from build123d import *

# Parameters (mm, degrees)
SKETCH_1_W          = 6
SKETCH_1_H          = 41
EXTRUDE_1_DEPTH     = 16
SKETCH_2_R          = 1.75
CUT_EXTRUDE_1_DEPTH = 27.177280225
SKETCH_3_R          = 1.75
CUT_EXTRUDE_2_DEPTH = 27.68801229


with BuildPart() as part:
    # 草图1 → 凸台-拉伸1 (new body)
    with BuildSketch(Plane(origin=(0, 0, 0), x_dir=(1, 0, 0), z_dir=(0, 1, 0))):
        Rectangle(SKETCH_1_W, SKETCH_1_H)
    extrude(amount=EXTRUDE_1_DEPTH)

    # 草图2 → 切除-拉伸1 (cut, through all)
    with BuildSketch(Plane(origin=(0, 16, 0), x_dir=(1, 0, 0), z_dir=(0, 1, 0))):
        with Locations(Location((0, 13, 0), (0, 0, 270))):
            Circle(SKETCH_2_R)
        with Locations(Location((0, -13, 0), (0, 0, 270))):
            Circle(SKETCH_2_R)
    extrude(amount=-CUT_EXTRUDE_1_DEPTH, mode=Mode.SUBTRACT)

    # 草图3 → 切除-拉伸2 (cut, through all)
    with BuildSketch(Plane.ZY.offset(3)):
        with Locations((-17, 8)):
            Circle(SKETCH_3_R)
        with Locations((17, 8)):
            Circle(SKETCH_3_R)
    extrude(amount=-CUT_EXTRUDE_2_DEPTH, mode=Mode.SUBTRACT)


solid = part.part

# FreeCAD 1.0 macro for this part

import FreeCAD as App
import Part
import Sketcher


def add_polygon(sketch, points):
    """Adds a closed chain of lines whose ends are joined by coincident constraints."""
    first, n = sketch.GeometryCount, len(points)
    for a, b in zip(points, points[1:] + points[:1]):
        sketch.addGeometry(Part.LineSegment(App.Vector(*a, 0), App.Vector(*b, 0)), False)
    for i in range(n):
        sketch.addConstraint(Sketcher.Constraint("Coincident", first + i, 2, first + (i + 1) % n, 1))

doc = App.newDocument("Part")
body = doc.addObject("PartDesign::Body", "Body")

# Sketch on XZ plane
sketch1 = body.newObject("Sketcher::SketchObject", "Sketch")
sketch1.AttachmentSupport = (doc.getObject("XZ_Plane"), [""])
sketch1.MapMode = "FlatFace"
add_polygon(sketch1, [(-3, -20), (-3, 20), (3, 20), (3, -20)])  # lines 0-3
sketch1.addConstraint(Sketcher.Constraint("Vertical", 0))
sketch1.addConstraint(Sketcher.Constraint("Horizontal", 1))
sketch1.addConstraint(Sketcher.Constraint("Vertical", 2))
sketch1.addConstraint(Sketcher.Constraint("Horizontal", 3))
sketch1.addConstraint(Sketcher.Constraint("Symmetric", 0, 2, 2, 2, -1, 1))
sketch1.addConstraint(Sketcher.Constraint("DistanceX", 1, 1, 1, 2, 6.0))
sketch1.addConstraint(Sketcher.Constraint("DistanceY", 0, 1, 0, 2, 41.0))
pad1 = body.newObject("PartDesign::Pad", "Pad")
pad1.Profile = sketch1
pad1.Length = 16
pad1.Reversed = True

# Sketch on XZ plane
sketch2 = body.newObject("Sketcher::SketchObject", "Sketch001")
sketch2.AttachmentSupport = (doc.getObject("XZ_Plane"), [""])
sketch2.MapMode = "FlatFace"
sketch2.AttachmentOffset = App.Placement(App.Vector(0, 0, -16), App.Rotation())
sketch2.addGeometry(Part.Circle(App.Vector(0, -13, 0), App.Vector(0, 0, 1), 1.8), False)
sketch2.addGeometry(Part.Circle(App.Vector(0, 13, 0), App.Vector(0, 0, 1), 1.8), False)
sketch2.addConstraint(Sketcher.Constraint("Equal", 0, 1))
sketch2.addConstraint(Sketcher.Constraint("Symmetric", 0, 3, 1, 3, -1, 1))
sketch2.addConstraint(Sketcher.Constraint("PointOnObject", 0, 3, -2))
sketch2.addConstraint(Sketcher.Constraint("Diameter", 0, 3.5))
sketch2.addConstraint(Sketcher.Constraint("DistanceY", 0, 3, -1, 1, 13.0))
pocket1 = body.newObject("PartDesign::Pocket", "Pocket")
pocket1.Profile = sketch2
pocket1.Type = "ThroughAll"
pocket1.Reversed = True

# Sketch on YZ plane
sketch3 = body.newObject("Sketcher::SketchObject", "Sketch002")
sketch3.AttachmentSupport = (doc.getObject("YZ_Plane"), [""])
sketch3.MapMode = "FlatFace"
sketch3.AttachmentOffset = App.Placement(App.Vector(0, 0, -3), App.Rotation())
sketch3.addGeometry(Part.Circle(App.Vector(8, -17, 0), App.Vector(0, 0, 1), 1.8), False)
sketch3.addGeometry(Part.Circle(App.Vector(8, 17, 0), App.Vector(0, 0, 1), 1.8), False)
sketch3.addConstraint(Sketcher.Constraint("Equal", 0, 1))
sketch3.addConstraint(Sketcher.Constraint("Symmetric", 0, 3, 1, 3, -1))
sketch3.addConstraint(Sketcher.Constraint("Diameter", 0, 3.5))
sketch3.addConstraint(Sketcher.Constraint("DistanceX", -1, 1, 0, 3, 8.0))
sketch3.addConstraint(Sketcher.Constraint("DistanceY", 0, 3, -1, 1, 17.0))
pocket2 = body.newObject("PartDesign::Pocket", "Pocket001")
pocket2.Profile = sketch3
pocket2.Type = "ThroughAll"
pocket2.Reversed = True

doc.recompute()
